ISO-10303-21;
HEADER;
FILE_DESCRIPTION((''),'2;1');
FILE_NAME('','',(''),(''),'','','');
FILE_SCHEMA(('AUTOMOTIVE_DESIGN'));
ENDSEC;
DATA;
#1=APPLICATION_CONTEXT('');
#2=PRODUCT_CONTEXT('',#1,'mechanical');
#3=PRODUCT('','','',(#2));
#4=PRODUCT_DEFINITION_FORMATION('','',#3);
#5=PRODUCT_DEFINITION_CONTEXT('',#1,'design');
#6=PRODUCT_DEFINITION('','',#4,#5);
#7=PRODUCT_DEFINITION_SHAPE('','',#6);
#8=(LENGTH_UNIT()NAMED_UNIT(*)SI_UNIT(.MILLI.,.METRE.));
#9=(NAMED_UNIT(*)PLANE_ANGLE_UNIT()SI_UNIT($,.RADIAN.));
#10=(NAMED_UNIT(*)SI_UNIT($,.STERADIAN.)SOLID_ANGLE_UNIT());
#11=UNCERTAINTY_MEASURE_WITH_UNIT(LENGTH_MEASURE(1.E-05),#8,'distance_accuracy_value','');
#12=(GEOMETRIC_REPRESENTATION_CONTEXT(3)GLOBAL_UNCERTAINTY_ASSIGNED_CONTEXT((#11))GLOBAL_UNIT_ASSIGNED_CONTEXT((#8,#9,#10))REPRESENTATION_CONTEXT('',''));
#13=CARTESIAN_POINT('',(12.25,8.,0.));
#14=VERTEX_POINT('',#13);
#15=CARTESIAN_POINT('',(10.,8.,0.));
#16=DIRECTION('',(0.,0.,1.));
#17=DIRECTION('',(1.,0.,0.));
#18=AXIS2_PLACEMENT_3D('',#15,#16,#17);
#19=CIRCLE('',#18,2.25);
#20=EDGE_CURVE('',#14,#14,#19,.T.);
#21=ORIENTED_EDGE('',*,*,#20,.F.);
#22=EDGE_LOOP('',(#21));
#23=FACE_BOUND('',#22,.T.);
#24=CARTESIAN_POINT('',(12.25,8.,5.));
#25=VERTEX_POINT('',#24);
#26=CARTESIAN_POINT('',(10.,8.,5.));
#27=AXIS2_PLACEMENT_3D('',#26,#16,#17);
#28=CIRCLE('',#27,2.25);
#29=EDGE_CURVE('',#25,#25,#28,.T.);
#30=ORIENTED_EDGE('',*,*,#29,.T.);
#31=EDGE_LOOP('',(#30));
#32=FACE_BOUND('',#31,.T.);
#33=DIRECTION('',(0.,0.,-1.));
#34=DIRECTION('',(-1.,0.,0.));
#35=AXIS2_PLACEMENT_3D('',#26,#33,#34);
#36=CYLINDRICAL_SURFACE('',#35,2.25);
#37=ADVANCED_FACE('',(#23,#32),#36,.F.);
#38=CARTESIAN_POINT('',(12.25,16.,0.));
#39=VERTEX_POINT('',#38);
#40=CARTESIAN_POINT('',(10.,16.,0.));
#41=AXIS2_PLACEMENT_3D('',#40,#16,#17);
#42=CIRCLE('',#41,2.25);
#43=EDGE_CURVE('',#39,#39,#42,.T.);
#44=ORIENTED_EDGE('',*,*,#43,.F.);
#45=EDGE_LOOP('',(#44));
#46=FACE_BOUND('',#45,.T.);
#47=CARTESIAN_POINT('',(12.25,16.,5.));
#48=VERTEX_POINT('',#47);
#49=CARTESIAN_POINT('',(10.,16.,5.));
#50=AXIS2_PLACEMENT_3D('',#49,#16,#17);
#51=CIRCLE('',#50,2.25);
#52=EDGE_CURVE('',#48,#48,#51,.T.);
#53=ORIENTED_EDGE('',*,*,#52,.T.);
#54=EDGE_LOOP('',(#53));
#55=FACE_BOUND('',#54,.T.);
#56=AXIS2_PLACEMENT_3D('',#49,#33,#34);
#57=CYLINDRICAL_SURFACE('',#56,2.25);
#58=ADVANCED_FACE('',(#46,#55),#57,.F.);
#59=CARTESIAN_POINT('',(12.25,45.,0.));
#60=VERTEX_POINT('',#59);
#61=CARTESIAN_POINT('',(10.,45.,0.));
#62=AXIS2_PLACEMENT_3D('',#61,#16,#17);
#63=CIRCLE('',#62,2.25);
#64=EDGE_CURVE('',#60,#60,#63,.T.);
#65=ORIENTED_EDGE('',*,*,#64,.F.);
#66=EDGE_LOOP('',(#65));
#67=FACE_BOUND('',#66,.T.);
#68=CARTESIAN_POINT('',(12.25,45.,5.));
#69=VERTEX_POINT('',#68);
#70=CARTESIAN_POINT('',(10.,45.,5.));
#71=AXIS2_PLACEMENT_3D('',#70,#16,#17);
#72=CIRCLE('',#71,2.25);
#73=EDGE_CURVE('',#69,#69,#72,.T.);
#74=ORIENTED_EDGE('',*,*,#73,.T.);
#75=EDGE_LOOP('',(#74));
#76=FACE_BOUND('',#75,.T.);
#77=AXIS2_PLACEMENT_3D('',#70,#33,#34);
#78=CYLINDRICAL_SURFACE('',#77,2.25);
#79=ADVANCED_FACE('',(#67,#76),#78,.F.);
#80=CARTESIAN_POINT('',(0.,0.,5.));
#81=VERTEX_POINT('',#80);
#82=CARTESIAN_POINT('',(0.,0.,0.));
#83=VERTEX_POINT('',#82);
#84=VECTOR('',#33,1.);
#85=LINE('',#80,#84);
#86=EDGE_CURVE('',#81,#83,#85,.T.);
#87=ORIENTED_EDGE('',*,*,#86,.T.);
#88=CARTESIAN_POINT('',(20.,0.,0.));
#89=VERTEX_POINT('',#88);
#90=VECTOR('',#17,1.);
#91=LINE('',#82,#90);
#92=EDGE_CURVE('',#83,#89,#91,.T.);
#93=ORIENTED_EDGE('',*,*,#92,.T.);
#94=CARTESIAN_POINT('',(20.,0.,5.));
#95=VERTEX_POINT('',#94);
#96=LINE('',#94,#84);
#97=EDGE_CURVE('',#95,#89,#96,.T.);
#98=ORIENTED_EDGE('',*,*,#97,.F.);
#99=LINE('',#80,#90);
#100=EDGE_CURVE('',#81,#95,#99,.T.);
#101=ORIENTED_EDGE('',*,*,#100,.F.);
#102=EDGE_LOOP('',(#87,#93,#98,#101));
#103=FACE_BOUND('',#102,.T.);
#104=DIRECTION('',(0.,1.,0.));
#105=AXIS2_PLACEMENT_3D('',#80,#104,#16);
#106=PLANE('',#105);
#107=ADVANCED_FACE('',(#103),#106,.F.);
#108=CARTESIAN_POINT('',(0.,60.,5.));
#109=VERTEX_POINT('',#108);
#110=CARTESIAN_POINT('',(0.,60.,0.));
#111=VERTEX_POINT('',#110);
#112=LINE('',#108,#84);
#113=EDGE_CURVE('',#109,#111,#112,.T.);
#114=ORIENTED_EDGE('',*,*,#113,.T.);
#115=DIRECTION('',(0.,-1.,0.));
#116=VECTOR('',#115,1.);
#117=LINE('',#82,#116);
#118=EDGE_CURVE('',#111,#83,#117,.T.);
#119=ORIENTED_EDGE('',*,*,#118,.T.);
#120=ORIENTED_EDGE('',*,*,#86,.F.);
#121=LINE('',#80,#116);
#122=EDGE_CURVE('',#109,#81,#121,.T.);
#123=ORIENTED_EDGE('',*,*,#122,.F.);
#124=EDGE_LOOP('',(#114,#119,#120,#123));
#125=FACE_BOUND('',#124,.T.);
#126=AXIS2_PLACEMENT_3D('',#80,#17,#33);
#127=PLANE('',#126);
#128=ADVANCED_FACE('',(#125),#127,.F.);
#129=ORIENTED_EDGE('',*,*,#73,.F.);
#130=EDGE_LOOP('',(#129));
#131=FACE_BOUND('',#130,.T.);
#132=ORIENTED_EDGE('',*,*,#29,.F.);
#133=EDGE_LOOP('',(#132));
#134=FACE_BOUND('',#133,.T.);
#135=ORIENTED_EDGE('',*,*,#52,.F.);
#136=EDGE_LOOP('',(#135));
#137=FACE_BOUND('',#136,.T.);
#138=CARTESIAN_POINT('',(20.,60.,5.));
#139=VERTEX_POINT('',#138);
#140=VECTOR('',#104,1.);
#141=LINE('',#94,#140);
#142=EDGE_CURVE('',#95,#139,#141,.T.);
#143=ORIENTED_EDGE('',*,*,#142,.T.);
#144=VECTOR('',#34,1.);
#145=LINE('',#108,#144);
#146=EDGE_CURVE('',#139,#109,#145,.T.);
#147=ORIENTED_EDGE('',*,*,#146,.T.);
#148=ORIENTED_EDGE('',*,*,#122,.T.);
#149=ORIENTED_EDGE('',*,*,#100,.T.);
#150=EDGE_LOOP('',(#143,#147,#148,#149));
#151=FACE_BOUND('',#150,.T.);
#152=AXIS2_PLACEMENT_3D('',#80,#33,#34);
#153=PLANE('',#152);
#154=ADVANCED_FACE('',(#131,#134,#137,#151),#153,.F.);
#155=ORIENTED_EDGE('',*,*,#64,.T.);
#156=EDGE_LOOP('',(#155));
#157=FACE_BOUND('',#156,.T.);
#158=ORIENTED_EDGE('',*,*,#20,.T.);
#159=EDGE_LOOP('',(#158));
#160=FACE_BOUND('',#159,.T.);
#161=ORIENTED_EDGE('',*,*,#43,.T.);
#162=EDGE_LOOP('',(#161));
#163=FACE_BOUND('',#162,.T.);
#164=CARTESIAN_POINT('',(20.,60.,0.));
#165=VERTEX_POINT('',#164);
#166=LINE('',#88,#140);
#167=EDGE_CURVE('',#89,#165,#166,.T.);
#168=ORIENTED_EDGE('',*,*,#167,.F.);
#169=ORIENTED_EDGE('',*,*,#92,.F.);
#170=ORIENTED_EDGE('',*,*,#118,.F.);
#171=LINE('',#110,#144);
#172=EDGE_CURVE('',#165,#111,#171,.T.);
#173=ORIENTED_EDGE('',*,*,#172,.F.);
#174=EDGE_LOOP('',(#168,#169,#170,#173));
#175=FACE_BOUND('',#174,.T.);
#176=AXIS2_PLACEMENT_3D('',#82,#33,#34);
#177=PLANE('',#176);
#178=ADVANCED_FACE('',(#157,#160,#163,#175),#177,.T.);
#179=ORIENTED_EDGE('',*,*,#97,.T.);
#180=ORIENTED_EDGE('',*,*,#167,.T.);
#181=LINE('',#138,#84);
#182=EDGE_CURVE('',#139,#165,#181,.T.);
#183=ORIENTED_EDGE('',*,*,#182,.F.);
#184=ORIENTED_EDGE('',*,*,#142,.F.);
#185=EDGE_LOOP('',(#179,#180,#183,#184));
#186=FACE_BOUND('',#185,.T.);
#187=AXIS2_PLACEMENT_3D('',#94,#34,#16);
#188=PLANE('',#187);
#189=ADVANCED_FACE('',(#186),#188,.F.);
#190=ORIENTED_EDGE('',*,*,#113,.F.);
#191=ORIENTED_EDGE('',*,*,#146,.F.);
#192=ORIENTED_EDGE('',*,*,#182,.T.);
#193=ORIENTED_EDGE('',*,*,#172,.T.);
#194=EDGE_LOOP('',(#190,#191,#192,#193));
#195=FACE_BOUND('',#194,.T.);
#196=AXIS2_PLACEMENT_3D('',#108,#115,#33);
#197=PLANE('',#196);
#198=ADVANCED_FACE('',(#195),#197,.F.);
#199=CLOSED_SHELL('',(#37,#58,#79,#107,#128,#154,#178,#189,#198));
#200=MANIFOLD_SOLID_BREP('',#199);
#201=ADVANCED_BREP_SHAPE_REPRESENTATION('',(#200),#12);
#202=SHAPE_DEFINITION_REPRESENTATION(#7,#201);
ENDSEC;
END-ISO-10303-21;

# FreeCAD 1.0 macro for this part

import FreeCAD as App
import Part
import Sketcher

V = App.Vector

doc = App.newDocument("Part")
body = doc.addObject("PartDesign::Body", "Body")

sketch1 = body.newObject("Sketcher::SketchObject", "Sketch")
sketch1.AttachmentSupport = (doc.getObject("XY_Plane"), [""])
sketch1.MapMode = "FlatFace"
sketch1.addGeometry(Part.LineSegment(V(0, 60, 0), V(0, 0, 0)), False)
sketch1.addGeometry(Part.LineSegment(V(0, 0, 0), V(20, 0, 0)), False)
sketch1.addGeometry(Part.LineSegment(V(20, 0, 0), V(20, 60, 0)), False)
sketch1.addGeometry(Part.LineSegment(V(20, 60, 0), V(0, 60, 0)), False)
sketch1.addGeometry(Part.Circle(V(10, 8, 0), V(0, 0, 1), 2.25), False)
sketch1.addGeometry(Part.Circle(V(10, 16, 0), V(0, 0, 1), 2.25), False)
sketch1.addGeometry(Part.Circle(V(10, 45, 0), V(0, 0, 1), 2.25), False)
sketch1.addConstraint(Sketcher.Constraint("Coincident", 0, 2, 1, 1))
sketch1.addConstraint(Sketcher.Constraint("Coincident", 1, 2, 2, 1))
sketch1.addConstraint(Sketcher.Constraint("Coincident", 2, 2, 3, 1))
sketch1.addConstraint(Sketcher.Constraint("Coincident", 3, 2, 0, 1))
sketch1.addConstraint(Sketcher.Constraint("Vertical", 0))
sketch1.addConstraint(Sketcher.Constraint("Horizontal", 1))
sketch1.addConstraint(Sketcher.Constraint("Vertical", 2))
sketch1.addConstraint(Sketcher.Constraint("Horizontal", 3))
sketch1.addConstraint(Sketcher.Constraint("Coincident", 0, 2, -1, 1))
sketch1.addConstraint(Sketcher.Constraint("Equal", 4, 5))
sketch1.addConstraint(Sketcher.Constraint("Equal", 5, 6))
sketch1.addConstraint(Sketcher.Constraint("Vertical", 4, 3, 5, 3))
sketch1.addConstraint(Sketcher.Constraint("Vertical", 5, 3, 6, 3))
sketch1.addConstraint(Sketcher.Constraint("Diameter", 4, 4.5))
sketch1.addConstraint(Sketcher.Constraint("DistanceX", 1, 1, 1, 2, 20.0))
sketch1.addConstraint(Sketcher.Constraint("DistanceY", 0, 2, 0, 1, 60.0))
sketch1.addConstraint(Sketcher.Constraint("DistanceX", -1, 1, 4, 3, 10.0))
sketch1.addConstraint(Sketcher.Constraint("DistanceY", -1, 1, 4, 3, 8.0))
sketch1.addConstraint(Sketcher.Constraint("DistanceY", -1, 1, 5, 3, 16.0))
sketch1.addConstraint(Sketcher.Constraint("DistanceY", -1, 1, 6, 3, 45.0))
pad1 = body.newObject("PartDesign::Pad", "Pad")
pad1.Profile = sketch1
pad1.Length = 5

doc.recompute()
